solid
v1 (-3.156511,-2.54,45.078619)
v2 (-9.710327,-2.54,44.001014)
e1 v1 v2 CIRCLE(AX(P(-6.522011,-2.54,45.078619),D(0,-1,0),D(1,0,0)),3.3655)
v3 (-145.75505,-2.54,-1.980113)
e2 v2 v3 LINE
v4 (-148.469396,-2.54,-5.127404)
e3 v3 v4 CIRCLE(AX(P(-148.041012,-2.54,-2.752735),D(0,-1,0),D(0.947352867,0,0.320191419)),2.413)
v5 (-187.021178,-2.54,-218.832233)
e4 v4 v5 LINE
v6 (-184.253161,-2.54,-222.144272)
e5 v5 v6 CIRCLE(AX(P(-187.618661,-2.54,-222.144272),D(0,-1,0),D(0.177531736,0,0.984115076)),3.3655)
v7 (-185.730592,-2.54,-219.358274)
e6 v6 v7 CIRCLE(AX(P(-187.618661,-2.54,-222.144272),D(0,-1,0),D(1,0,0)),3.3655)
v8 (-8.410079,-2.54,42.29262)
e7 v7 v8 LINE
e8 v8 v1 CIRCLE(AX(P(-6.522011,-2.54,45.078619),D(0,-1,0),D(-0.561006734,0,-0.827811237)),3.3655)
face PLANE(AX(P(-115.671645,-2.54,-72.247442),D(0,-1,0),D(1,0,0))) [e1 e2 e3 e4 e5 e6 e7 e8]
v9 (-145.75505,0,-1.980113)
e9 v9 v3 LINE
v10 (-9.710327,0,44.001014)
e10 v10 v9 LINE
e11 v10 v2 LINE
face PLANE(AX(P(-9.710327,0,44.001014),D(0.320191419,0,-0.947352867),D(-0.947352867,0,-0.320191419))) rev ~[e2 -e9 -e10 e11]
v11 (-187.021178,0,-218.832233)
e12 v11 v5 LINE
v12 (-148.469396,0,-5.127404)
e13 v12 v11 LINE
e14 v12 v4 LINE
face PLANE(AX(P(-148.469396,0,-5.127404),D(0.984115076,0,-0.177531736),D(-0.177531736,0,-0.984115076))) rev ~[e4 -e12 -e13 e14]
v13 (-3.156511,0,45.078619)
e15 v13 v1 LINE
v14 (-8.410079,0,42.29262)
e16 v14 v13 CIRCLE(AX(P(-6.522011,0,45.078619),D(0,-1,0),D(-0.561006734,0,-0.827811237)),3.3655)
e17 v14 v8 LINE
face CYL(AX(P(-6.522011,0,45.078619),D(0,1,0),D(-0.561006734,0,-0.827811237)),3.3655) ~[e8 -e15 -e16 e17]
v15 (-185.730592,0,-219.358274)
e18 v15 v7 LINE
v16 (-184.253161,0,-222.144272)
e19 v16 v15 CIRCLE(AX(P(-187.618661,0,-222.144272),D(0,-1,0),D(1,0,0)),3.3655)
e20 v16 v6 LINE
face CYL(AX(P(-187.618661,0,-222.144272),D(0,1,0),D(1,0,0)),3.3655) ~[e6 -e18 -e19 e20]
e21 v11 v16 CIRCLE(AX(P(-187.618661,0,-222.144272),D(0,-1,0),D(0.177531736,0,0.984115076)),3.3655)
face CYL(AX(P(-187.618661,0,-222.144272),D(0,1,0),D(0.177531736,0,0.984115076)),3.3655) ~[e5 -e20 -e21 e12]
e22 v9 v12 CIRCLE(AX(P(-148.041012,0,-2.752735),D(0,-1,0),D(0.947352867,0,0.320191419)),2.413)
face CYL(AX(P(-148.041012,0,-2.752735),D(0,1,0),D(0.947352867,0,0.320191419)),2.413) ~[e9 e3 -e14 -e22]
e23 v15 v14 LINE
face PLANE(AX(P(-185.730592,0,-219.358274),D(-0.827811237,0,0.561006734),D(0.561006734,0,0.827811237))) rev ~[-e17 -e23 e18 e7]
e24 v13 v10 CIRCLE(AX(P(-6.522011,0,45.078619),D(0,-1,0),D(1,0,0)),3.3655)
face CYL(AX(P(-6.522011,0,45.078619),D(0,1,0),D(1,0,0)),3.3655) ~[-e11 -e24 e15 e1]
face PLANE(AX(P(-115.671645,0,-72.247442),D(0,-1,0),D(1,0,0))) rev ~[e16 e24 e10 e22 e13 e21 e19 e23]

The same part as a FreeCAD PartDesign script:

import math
import FreeCAD as App
import Part
import Sketcher
Q = App.Units.Quantity

doc = App.newDocument("Part")
body = doc.addObject("PartDesign::Body", "Body")

# Sketch on XZ plane
sketch1 = body.newObject("Sketcher::SketchObject", "Sketch")
sketch1.AttachmentSupport = (doc.getObject("XZ_Plane"), [""])
sketch1.MapMode = "FlatFace"
sketch1.addGeometry(Part.LineSegment(App.Vector(-148.469396, -5.127404, 0), App.Vector(-187.021178, -218.832233, 0)), False)
sketch1.addGeometry(Part.ArcOfCircle(Part.Circle(App.Vector(-187.618661, -222.144272, 0), App.Vector(0, 0, 1), 3.3655), math.radians(79.773977), math.radians(360)), False)
sketch1.addGeometry(Part.ArcOfCircle(Part.Circle(App.Vector(-187.618661, -222.144272, 0), App.Vector(0, 0, 1), 3.3655), math.radians(0), math.radians(55.874551)), False)
sketch1.addGeometry(Part.LineSegment(App.Vector(-185.730592, -219.358274, 0), App.Vector(-8.410079, 42.29262, 0)), False)
sketch1.addGeometry(Part.ArcOfCircle(Part.Circle(App.Vector(-6.522011, 45.078619, 0), App.Vector(0, 0, 1), 3.3655), math.radians(-124.125449), math.radians(0)), False)
sketch1.addGeometry(Part.ArcOfCircle(Part.Circle(App.Vector(-6.522011, 45.078619, 0), App.Vector(0, 0, 1), 3.3655), math.radians(0), math.radians(198.674501)), False)
sketch1.addGeometry(Part.LineSegment(App.Vector(-9.710327, 44.001014, 0), App.Vector(-145.75505, -1.980113, 0)), False)
sketch1.addGeometry(Part.ArcOfCircle(Part.Circle(App.Vector(-148.041012, -2.752735, 0), App.Vector(0, 0, 1), 2.413), math.radians(18.674501), math.radians(259.773977)), False)
sketch1.addConstraint(Sketcher.Constraint("Coincident", 0, 2, 1, 1))
sketch1.addConstraint(Sketcher.Constraint("Tangent", 1, 2, 2, 1))
sketch1.addConstraint(Sketcher.Constraint("Coincident", 2, 2, 3, 1))
sketch1.addConstraint(Sketcher.Constraint("Coincident", 3, 2, 4, 1))
sketch1.addConstraint(Sketcher.Constraint("Tangent", 4, 2, 5, 1))
sketch1.addConstraint(Sketcher.Constraint("Coincident", 5, 2, 6, 1))
sketch1.addConstraint(Sketcher.Constraint("Coincident", 6, 2, 7, 1))
sketch1.addConstraint(Sketcher.Constraint("Coincident", 7, 2, 0, 1))
sketch1.addConstraint(Sketcher.Constraint("Equal", 1, 2))
sketch1.addConstraint(Sketcher.Constraint("Equal", 2, 4))
sketch1.addConstraint(Sketcher.Constraint("Equal", 4, 5))
sketch1.addConstraint(Sketcher.Constraint("Horizontal", 2, 3, 1, 2))
sketch1.addConstraint(Sketcher.Constraint("Horizontal", 5, 3, 4, 2))
sketch1.addConstraint(Sketcher.Constraint("Radius", 7, Q("0.095 in")))
sketch1.addConstraint(Sketcher.Constraint("Radius", 1, Q("0.1325 in")))
sketch1.addConstraint(Sketcher.Constraint("DistanceX", 7, 3, 4, 3, Q("141.519001 mm")))
sketch1.addConstraint(Sketcher.Constraint("DistanceY", 0, 2, 7, 3, Q("216.079498 mm")))
sketch1.addConstraint(Sketcher.Constraint("DistanceY", 1, 2, 2, 2, Q("2.785999 mm")))
sketch1.addConstraint(Sketcher.Constraint("DistanceY", 3, 2, 4, 3, Q("2.785999 mm")))
sketch1.addConstraint(Sketcher.Constraint("DistanceX", 0, 2, 3, 2, Q("178.611098 mm")))
sketch1.addConstraint(Sketcher.Constraint("Distance", 3, Q("316.075552 mm")))
sketch1.addConstraint(Sketcher.Constraint("Distance", 6, Q("143.60512 mm")))
sketch1.addConstraint(Sketcher.Constraint("DistanceX", 1, 3, -1, 1, Q("187.618661 mm")))
sketch1.addConstraint(Sketcher.Constraint("DistanceY", -1, 1, 4, 3, Q("45.078619 mm")))
sketch1.addConstraint(Sketcher.Constraint("DistanceX", 6, 2, -1, 1, Q("145.75505 mm")))
sketch1.addConstraint(Sketcher.Constraint("DistanceY", 7, 3, 5, 2, Q("46.753749 mm")))
sketch1.addConstraint(Sketcher.Constraint("DistanceY", 7, 2, 7, 3, Q("2.37467 mm")))
pad1 = body.newObject("PartDesign::Pad", "Pad")
pad1.Profile = sketch1
pad1.Length = Q("0.1 in")

doc.recompute()
